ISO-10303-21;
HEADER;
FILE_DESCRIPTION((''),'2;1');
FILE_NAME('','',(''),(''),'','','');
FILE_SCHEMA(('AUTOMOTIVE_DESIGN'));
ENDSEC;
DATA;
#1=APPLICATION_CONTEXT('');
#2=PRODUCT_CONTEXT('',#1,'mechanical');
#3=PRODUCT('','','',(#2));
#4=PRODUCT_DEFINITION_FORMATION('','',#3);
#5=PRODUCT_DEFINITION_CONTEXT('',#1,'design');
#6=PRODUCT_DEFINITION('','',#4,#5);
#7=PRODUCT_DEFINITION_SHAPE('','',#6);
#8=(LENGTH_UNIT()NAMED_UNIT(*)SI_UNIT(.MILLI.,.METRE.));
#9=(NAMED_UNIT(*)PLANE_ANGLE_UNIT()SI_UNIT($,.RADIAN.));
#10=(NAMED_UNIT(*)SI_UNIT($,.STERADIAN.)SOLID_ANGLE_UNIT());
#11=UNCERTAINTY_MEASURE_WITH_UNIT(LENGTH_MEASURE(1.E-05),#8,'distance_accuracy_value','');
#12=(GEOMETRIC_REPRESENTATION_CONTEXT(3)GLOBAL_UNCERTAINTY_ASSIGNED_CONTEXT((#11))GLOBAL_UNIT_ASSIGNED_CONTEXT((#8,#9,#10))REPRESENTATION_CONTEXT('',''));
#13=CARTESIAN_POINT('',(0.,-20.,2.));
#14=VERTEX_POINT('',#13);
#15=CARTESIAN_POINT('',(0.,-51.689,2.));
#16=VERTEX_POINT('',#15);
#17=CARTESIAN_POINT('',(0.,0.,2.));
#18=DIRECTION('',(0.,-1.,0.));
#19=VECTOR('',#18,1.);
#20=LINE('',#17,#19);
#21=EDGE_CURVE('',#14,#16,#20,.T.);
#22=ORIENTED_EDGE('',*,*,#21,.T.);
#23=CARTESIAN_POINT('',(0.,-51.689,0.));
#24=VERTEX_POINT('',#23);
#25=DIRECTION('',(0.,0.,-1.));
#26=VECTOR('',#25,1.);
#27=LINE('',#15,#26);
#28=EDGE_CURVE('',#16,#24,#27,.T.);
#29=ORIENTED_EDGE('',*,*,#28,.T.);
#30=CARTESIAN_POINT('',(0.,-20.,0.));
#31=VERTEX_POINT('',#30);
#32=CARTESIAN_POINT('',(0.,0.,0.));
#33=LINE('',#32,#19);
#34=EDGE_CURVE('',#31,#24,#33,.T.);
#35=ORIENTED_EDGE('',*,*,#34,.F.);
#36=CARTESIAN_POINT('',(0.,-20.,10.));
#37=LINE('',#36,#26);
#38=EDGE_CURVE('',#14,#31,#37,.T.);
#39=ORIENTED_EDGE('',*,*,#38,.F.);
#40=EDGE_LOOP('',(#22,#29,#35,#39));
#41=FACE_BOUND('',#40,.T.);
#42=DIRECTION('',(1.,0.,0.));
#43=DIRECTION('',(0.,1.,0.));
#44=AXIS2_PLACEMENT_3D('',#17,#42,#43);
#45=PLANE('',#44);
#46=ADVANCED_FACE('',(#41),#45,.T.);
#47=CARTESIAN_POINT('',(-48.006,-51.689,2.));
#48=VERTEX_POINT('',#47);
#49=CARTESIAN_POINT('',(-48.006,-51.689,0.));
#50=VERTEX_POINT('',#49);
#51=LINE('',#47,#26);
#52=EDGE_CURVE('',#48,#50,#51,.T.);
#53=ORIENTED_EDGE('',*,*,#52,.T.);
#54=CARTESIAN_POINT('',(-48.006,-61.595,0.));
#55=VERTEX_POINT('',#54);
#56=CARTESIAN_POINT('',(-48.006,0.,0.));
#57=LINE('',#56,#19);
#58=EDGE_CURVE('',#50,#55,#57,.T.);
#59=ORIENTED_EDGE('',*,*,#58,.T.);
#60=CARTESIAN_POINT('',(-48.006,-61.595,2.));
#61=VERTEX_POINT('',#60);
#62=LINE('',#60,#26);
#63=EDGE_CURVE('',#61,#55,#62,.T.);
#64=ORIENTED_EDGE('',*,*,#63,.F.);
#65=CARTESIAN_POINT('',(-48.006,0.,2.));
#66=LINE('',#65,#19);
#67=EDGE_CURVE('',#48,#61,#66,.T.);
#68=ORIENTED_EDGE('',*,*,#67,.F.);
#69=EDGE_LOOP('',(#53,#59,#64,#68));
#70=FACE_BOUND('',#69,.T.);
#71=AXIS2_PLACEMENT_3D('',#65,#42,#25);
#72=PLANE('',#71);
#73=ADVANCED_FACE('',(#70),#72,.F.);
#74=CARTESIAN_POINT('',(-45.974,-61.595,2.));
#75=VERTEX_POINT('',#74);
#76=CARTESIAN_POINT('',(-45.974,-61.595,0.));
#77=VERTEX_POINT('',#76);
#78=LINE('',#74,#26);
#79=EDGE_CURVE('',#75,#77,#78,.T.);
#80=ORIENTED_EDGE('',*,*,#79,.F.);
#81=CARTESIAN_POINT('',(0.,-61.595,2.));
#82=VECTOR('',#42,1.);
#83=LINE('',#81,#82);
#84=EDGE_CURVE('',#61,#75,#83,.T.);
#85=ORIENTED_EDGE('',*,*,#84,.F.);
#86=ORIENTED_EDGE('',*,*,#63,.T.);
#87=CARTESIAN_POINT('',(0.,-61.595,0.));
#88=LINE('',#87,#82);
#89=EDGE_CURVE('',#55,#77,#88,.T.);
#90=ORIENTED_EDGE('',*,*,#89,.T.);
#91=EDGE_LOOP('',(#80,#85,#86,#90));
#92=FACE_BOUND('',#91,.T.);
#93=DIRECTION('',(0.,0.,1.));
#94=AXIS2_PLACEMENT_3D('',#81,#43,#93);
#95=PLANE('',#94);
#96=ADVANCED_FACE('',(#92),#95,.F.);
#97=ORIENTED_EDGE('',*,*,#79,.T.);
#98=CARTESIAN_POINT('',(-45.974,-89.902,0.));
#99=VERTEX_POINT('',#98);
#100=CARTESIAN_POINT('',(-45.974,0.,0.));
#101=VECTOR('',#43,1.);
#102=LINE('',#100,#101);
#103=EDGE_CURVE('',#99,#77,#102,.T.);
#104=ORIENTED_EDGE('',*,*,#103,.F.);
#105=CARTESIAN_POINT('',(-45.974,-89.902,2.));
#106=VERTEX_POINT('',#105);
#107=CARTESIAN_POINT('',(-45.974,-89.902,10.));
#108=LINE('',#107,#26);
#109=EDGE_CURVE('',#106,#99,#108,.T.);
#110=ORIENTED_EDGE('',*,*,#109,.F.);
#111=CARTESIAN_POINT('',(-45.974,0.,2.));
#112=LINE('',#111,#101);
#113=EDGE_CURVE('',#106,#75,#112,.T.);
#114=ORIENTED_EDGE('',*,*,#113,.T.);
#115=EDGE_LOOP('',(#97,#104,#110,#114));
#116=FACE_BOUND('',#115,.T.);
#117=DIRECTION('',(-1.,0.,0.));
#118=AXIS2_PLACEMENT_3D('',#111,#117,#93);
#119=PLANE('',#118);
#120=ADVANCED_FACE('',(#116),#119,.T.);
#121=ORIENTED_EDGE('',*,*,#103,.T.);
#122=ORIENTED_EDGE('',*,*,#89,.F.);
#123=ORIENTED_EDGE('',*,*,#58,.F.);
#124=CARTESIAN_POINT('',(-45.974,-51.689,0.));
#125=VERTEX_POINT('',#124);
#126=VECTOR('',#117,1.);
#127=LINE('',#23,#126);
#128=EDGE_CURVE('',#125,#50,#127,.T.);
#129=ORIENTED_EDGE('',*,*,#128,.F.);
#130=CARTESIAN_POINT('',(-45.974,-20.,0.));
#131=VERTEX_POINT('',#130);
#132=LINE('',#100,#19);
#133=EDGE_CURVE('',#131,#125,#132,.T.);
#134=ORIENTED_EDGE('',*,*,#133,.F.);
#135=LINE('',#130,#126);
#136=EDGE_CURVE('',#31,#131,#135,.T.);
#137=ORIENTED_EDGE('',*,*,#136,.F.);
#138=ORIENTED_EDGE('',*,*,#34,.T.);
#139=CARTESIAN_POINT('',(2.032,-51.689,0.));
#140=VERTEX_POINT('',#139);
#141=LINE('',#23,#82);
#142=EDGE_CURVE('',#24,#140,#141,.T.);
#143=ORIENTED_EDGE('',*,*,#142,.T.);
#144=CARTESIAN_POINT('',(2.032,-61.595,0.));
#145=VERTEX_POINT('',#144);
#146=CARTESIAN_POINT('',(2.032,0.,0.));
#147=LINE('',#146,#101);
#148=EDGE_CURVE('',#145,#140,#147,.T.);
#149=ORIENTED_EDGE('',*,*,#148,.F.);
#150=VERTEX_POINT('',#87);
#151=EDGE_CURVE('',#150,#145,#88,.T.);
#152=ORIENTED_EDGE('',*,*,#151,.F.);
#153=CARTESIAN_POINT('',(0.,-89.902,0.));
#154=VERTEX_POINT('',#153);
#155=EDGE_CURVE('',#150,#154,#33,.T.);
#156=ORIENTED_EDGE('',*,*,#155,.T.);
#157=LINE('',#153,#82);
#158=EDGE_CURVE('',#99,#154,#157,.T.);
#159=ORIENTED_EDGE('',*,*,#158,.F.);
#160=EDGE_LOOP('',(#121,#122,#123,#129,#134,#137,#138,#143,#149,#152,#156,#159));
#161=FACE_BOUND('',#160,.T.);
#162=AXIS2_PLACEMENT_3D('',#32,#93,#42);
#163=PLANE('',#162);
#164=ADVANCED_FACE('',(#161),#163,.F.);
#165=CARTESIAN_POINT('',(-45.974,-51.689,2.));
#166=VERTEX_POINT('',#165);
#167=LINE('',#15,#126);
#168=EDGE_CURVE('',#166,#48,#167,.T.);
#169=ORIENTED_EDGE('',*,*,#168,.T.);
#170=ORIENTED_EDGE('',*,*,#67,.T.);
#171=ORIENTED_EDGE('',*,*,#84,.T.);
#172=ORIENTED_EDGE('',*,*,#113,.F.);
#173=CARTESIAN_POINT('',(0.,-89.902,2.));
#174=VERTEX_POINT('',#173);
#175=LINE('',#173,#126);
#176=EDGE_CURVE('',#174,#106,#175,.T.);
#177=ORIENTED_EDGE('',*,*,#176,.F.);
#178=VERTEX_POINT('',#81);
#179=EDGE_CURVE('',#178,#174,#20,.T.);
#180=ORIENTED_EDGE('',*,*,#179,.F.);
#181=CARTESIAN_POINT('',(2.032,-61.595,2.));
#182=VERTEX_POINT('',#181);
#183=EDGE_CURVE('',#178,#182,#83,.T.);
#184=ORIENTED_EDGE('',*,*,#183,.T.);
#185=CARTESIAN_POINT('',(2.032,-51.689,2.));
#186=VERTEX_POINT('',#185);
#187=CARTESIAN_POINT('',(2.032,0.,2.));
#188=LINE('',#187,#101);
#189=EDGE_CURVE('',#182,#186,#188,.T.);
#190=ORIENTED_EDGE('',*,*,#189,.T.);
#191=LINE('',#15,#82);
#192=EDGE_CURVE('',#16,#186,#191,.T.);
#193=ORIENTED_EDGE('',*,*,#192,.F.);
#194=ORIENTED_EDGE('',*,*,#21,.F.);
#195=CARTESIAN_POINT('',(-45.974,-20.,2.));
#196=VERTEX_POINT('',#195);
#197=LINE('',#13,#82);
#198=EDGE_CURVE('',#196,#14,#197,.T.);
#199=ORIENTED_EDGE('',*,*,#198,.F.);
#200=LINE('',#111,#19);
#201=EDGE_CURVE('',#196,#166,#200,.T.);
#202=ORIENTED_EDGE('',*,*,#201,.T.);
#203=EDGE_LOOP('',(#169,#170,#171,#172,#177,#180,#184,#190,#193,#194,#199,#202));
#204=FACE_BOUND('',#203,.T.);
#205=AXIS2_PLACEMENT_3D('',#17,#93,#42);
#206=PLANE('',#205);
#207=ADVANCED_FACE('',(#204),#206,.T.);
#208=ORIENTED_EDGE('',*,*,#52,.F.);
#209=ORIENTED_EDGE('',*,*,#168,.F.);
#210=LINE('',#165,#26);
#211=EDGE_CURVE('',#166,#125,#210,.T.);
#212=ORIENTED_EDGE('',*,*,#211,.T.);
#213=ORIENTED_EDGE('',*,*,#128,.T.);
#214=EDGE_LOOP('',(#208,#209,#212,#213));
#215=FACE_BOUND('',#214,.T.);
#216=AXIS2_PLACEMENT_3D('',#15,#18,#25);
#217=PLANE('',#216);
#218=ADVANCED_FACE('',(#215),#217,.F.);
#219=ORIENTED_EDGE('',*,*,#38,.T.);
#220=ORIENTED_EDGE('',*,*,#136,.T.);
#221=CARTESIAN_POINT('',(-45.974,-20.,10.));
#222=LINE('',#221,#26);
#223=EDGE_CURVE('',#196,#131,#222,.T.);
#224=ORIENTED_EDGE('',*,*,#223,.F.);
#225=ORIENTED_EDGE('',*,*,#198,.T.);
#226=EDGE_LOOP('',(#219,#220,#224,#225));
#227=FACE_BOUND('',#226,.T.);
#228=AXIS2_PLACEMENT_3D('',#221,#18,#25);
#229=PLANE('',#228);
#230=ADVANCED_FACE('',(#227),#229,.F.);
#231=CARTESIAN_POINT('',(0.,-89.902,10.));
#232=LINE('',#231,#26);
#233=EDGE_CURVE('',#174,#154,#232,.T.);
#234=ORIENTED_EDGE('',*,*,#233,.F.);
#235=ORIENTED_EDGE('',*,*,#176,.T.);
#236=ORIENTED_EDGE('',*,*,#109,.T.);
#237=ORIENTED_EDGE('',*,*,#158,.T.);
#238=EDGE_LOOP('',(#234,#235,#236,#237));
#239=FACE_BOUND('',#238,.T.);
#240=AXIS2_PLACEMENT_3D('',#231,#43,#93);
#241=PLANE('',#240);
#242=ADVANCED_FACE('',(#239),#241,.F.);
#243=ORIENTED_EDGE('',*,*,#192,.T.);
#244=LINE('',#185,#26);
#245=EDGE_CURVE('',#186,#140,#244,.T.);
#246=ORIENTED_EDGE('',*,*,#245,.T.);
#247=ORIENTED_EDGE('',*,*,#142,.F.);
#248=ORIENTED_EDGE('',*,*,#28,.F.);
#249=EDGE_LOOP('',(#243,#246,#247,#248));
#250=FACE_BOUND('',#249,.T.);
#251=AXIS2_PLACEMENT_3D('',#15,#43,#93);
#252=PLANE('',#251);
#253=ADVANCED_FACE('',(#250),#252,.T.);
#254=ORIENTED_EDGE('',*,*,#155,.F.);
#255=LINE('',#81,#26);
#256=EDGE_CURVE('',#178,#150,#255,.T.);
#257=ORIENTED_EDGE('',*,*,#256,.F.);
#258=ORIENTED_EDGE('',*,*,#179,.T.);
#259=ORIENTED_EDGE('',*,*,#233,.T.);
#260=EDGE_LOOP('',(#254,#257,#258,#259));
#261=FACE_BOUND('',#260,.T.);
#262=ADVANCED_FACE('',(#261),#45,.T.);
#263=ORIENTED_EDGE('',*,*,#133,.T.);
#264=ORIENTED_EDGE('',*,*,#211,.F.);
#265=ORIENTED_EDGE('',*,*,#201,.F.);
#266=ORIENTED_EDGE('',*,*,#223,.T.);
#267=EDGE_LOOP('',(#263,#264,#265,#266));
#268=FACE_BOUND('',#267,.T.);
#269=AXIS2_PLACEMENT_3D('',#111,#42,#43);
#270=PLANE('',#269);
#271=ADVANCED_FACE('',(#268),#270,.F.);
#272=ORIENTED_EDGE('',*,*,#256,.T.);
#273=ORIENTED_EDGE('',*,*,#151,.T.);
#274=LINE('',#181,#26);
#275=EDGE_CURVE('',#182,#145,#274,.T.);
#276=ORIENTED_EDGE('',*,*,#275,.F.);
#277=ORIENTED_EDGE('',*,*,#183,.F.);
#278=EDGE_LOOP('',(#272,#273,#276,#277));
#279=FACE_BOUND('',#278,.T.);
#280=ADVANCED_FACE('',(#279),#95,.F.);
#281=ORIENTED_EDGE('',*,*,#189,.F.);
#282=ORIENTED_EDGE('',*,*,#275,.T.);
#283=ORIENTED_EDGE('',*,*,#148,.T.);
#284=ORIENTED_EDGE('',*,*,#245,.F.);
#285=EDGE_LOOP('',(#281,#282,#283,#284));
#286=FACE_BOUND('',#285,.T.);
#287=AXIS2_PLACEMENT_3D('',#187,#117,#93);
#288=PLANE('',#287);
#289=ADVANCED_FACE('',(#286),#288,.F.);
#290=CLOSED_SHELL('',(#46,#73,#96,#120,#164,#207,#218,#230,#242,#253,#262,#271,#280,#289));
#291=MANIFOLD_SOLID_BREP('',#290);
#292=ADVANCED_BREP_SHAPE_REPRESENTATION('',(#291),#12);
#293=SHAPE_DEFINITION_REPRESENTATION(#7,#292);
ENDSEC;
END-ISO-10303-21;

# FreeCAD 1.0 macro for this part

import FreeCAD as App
import Part
import Sketcher
from FreeCAD import Vector
Q = App.Units.Quantity


def add_polygon(sketch, points):
    """Adds a closed chain of lines whose ends are joined by coincident constraints."""
    first, n = sketch.GeometryCount, len(points)
    for a, b in zip(points, points[1:] + points[:1]):
        sketch.addGeometry(Part.LineSegment(App.Vector(*a, 0), App.Vector(*b, 0)), False)
    for i in range(n):
        sketch.addConstraint(Sketcher.Constraint("Coincident", first + i, 2, first + (i + 1) % n, 1))

doc = App.newDocument("Part")
params = doc.addObject("Spreadsheet::Sheet", "Params")
for row, (alias, value) in enumerate([
    ("sketch1_width", "0.08 in"),
    ("sketch1_width2", "1.81 in"),
    ("sketch1_height", "0.39 in"),
    ("sketch1_height2", "1.705 in"),
    ("sketch1_height3", "2.035 in"),
    ("pad1_length", "2 mm"),
    ("sketch2_width", "1.81 in"),
    ("pocket1_length", "10 mm"),
], start=1):
    params.set(f"A{row}", alias)
    params.set(f"B{row}", "=" + value)
    params.setAlias(f"B{row}", alias)

body = doc.addObject("PartDesign::Body", "Body")

# Sketch on XY plane
sketch1 = body.newObject("Sketcher::SketchObject", "Sketch")
sketch1.AttachmentSupport = (doc.getObject("XY_Plane"), [""])
sketch1.MapMode = "FlatFace"
add_polygon(sketch1, [(0, -104.9), (0, -61.6), (2, -61.6), (2, -51.7), (0, -51.7), (0, 0), (-46, 0), (-46, -51.7), (-48, -51.7), (-48, -61.6), (-46, -61.6), (-46, -104.9)])  # lines 0-11
sketch1.addConstraint(Sketcher.Constraint("Vertical", 0))
sketch1.addConstraint(Sketcher.Constraint("Horizontal", 1))
sketch1.addConstraint(Sketcher.Constraint("Vertical", 2))
sketch1.addConstraint(Sketcher.Constraint("Horizontal", 3))
sketch1.addConstraint(Sketcher.Constraint("Vertical", 4))
sketch1.addConstraint(Sketcher.Constraint("Horizontal", 5))
sketch1.addConstraint(Sketcher.Constraint("Vertical", 6))
sketch1.addConstraint(Sketcher.Constraint("Horizontal", 7))
sketch1.addConstraint(Sketcher.Constraint("Vertical", 8))
sketch1.addConstraint(Sketcher.Constraint("Horizontal", 9))
sketch1.addConstraint(Sketcher.Constraint("Vertical", 10))
sketch1.addConstraint(Sketcher.Constraint("Horizontal", 11))
sketch1.addConstraint(Sketcher.Constraint("Coincident", 4, 2, -1, 1))
sketch1.addConstraint(Sketcher.Constraint("PointOnObject", 0, 2, -2))
sketch1.addConstraint(Sketcher.Constraint("Horizontal", 3, 2, 6, 2))
sketch1.addConstraint(Sketcher.Constraint("Horizontal", 1, 2, 8, 2))
sketch1.addConstraint(Sketcher.Constraint("Vertical", 6, 2, 9, 2))
sketch1.addConstraint(Sketcher.Constraint("Equal", 3, 7))
sketch1.addConstraint(Sketcher.Constraint("DistanceX", 1, 1, 1, 2, Q("0.08 in")))
sketch1.addConstraint(Sketcher.Constraint("DistanceX", 5, 2, 5, 1, Q("1.81 in")))
sketch1.addConstraint(Sketcher.Constraint("DistanceY", 2, 1, 2, 2, Q("0.39 in")))
sketch1.addConstraint(Sketcher.Constraint("DistanceY", 0, 1, 0, 2, Q("1.705 in")))
sketch1.addConstraint(Sketcher.Constraint("DistanceY", 4, 1, 4, 2, Q("2.035 in")))
sketch1.setExpression("Constraints[30]", "Params.sketch1_width")
sketch1.setExpression("Constraints[31]", "Params.sketch1_width2")
sketch1.setExpression("Constraints[32]", "Params.sketch1_height")
sketch1.setExpression("Constraints[33]", "Params.sketch1_height2")
sketch1.setExpression("Constraints[34]", "Params.sketch1_height3")
pad1 = body.newObject("PartDesign::Pad", "Pad")
pad1.Profile = sketch1
pad1.setExpression("Length", "Params.pad1_length")

# Sketch on XY plane
sketch2 = body.newObject("Sketcher::SketchObject", "Sketch001")
sketch2.AttachmentSupport = (doc.getObject("XY_Plane"), [""])
sketch2.MapMode = "FlatFace"
add_polygon(sketch2, [(0, 0), (0, -20), (-46, -20), (-46, 0)])  # lines 0-3
add_polygon(sketch2, [(0, -90), (0, -105), (-46, -105), (-46, -90)])  # lines 4-7
sketch2.addConstraint(Sketcher.Constraint("Vertical", 0))
sketch2.addConstraint(Sketcher.Constraint("Horizontal", 1))
sketch2.addConstraint(Sketcher.Constraint("Vertical", 2))
sketch2.addConstraint(Sketcher.Constraint("Horizontal", 3))
sketch2.addConstraint(Sketcher.Constraint("Vertical", 4))
sketch2.addConstraint(Sketcher.Constraint("Horizontal", 5))
sketch2.addConstraint(Sketcher.Constraint("Vertical", 6))
sketch2.addConstraint(Sketcher.Constraint("Horizontal", 7))
sketch2.addConstraint(Sketcher.Constraint("Coincident", 3, 2, -1, 1))
sketch2.addConstraint(Sketcher.Constraint("PointOnObject", 4, 2, -2))
sketch2.addConstraint(Sketcher.Constraint("Vertical", 2, 2, 5, 2))
sketch2.addConstraint(Sketcher.Constraint("DistanceX", 1, 2, 1, 1, Q("1.81 in")))
sketch2.addConstraint(Sketcher.Constraint("DistanceY", 4, 2, -1, 1, Q("4.13 in")))
sketch2.addConstraint(Sketcher.Constraint("DistanceY", 0, 2, 0, 1, 20.0))
sketch2.addConstraint(Sketcher.Constraint("DistanceY", 4, 2, 4, 1, 15.0))
sketch2.setExpression("Constraints[19]", "Params.sketch2_width")
pocket1 = body.newObject("PartDesign::Pocket", "Pocket")
pocket1.Profile = sketch2
pocket1.setExpression("Length", "Params.pocket1_length")
pocket1.Reversed = True

doc.recompute()
